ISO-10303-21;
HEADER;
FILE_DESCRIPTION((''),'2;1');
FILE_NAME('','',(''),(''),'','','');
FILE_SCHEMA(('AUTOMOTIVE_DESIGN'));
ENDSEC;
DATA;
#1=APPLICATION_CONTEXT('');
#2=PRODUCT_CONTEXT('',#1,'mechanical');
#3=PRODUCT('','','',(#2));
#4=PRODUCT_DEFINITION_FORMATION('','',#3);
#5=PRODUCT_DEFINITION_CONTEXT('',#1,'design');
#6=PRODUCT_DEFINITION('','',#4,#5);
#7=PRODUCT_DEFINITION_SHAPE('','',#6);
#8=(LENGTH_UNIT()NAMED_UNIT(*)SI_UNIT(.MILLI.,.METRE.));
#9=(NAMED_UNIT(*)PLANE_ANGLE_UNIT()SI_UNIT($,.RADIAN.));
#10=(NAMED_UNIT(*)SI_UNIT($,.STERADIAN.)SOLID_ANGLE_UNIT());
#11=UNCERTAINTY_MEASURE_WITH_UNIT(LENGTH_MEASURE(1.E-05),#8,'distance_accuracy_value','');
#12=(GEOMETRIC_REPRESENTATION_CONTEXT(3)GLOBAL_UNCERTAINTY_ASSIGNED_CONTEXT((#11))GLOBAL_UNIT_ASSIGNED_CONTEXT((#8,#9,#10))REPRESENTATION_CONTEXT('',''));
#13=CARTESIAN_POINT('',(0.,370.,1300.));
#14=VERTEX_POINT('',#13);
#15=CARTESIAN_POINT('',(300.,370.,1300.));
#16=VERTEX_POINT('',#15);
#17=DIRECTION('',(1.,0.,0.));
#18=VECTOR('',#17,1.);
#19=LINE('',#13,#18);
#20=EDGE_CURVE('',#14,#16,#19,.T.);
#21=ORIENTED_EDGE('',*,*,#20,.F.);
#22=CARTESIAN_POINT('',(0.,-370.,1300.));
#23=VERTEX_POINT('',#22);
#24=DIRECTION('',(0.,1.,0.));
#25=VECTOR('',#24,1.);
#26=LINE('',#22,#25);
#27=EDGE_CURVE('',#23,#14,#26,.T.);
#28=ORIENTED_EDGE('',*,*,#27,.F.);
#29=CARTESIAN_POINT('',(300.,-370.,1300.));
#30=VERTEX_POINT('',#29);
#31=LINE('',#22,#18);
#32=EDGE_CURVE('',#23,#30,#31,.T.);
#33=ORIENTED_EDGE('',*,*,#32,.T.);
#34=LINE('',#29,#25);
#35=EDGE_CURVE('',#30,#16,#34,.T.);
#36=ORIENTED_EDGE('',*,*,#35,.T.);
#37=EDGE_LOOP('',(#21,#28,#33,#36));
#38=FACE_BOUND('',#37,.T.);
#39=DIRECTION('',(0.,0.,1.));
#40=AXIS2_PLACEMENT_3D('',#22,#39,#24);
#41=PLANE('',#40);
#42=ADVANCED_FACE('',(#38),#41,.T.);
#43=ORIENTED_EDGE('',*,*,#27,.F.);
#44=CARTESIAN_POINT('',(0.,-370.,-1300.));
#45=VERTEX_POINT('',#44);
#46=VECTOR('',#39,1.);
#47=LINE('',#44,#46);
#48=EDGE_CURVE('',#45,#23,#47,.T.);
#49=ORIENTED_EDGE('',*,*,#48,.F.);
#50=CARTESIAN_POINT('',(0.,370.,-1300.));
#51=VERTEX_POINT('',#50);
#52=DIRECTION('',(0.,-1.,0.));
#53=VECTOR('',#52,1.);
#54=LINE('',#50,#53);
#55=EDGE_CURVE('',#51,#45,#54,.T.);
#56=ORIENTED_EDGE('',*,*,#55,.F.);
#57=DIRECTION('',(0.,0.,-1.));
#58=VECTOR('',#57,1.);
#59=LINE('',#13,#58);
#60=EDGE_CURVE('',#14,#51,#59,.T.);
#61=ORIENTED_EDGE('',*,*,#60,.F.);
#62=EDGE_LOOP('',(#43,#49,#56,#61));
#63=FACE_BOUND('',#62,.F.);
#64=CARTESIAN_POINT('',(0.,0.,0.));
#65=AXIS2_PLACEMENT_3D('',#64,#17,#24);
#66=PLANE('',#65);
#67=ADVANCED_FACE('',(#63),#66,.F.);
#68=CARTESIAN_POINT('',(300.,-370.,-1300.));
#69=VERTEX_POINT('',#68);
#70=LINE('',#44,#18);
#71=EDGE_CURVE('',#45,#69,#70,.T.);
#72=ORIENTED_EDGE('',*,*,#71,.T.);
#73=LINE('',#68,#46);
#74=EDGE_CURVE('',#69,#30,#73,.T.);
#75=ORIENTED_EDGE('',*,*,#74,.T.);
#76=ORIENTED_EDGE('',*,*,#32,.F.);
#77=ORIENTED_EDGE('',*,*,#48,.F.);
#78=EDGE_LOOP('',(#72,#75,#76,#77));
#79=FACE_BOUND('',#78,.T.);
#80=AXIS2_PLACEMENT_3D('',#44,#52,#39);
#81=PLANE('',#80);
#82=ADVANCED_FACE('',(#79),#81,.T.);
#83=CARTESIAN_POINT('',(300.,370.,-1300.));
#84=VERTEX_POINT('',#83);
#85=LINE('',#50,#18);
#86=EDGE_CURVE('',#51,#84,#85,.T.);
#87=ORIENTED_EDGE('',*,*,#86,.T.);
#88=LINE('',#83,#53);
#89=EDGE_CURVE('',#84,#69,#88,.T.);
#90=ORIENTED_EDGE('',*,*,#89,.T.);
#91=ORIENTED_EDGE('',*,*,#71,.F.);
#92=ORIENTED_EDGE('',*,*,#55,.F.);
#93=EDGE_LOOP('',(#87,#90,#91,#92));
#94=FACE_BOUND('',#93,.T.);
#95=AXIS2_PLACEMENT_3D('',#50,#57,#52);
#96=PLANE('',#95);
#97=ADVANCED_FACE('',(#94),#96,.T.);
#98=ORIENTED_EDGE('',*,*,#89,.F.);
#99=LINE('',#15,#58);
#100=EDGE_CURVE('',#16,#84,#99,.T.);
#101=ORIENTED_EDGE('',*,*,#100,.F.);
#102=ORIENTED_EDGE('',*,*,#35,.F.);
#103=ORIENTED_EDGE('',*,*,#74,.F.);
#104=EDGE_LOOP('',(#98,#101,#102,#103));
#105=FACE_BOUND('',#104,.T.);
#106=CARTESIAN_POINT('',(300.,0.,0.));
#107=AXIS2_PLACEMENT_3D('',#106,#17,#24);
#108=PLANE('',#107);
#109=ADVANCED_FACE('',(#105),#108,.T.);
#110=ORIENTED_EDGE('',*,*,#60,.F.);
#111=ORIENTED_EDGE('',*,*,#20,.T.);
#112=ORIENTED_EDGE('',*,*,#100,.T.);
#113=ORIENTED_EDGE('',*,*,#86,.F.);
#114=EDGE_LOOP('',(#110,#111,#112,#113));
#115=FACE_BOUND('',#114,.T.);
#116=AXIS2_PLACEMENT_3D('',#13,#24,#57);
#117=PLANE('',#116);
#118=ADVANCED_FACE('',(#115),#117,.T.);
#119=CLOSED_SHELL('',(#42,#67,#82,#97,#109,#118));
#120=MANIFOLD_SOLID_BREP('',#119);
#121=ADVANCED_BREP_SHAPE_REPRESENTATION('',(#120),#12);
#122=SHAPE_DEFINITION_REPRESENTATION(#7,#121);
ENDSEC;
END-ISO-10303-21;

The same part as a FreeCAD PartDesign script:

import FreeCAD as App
import Part
import Sketcher
from FreeCAD import Vector


def add_polygon(sketch, points):
    """Adds a closed chain of lines whose ends are joined by coincident constraints."""
    first, n = sketch.GeometryCount, len(points)
    for a, b in zip(points, points[1:] + points[:1]):
        sketch.addGeometry(Part.LineSegment(App.Vector(*a, 0), App.Vector(*b, 0)), False)
    for i in range(n):
        sketch.addConstraint(Sketcher.Constraint("Coincident", first + i, 2, first + (i + 1) % n, 1))

doc = App.newDocument("Part")
body = doc.addObject("PartDesign::Body", "Body")

# Sketch on YZ plane
sketch1 = doc.addObject("Sketcher::SketchObject", "Sketch")
body.addObject(sketch1)
sketch1.AttachmentSupport = (doc.YZ_Plane, [""])
sketch1.MapMode = "FlatFace"
add_polygon(sketch1, [(-370, -1300), (370, -1300), (370, 1300), (-370, 1300)])  # lines 0-3
sketch1.addConstraint([
    Sketcher.Constraint("Horizontal", 0),
    Sketcher.Constraint("Vertical", 1),
    Sketcher.Constraint("Horizontal", 2),
    Sketcher.Constraint("Vertical", 3),
    Sketcher.Constraint("Symmetric", 0, 2, 2, 2, -1, 1),
    Sketcher.Constraint("DistanceX", 0, 1, 0, 2, 740.0),
    Sketcher.Constraint("DistanceY", 1, 1, 1, 2, 2600.0),
])
pad1 = doc.addObject("PartDesign::Pad", "Pad")
body.addObject(pad1)
pad1.Profile = sketch1
pad1.Length = 300

doc.recompute()
